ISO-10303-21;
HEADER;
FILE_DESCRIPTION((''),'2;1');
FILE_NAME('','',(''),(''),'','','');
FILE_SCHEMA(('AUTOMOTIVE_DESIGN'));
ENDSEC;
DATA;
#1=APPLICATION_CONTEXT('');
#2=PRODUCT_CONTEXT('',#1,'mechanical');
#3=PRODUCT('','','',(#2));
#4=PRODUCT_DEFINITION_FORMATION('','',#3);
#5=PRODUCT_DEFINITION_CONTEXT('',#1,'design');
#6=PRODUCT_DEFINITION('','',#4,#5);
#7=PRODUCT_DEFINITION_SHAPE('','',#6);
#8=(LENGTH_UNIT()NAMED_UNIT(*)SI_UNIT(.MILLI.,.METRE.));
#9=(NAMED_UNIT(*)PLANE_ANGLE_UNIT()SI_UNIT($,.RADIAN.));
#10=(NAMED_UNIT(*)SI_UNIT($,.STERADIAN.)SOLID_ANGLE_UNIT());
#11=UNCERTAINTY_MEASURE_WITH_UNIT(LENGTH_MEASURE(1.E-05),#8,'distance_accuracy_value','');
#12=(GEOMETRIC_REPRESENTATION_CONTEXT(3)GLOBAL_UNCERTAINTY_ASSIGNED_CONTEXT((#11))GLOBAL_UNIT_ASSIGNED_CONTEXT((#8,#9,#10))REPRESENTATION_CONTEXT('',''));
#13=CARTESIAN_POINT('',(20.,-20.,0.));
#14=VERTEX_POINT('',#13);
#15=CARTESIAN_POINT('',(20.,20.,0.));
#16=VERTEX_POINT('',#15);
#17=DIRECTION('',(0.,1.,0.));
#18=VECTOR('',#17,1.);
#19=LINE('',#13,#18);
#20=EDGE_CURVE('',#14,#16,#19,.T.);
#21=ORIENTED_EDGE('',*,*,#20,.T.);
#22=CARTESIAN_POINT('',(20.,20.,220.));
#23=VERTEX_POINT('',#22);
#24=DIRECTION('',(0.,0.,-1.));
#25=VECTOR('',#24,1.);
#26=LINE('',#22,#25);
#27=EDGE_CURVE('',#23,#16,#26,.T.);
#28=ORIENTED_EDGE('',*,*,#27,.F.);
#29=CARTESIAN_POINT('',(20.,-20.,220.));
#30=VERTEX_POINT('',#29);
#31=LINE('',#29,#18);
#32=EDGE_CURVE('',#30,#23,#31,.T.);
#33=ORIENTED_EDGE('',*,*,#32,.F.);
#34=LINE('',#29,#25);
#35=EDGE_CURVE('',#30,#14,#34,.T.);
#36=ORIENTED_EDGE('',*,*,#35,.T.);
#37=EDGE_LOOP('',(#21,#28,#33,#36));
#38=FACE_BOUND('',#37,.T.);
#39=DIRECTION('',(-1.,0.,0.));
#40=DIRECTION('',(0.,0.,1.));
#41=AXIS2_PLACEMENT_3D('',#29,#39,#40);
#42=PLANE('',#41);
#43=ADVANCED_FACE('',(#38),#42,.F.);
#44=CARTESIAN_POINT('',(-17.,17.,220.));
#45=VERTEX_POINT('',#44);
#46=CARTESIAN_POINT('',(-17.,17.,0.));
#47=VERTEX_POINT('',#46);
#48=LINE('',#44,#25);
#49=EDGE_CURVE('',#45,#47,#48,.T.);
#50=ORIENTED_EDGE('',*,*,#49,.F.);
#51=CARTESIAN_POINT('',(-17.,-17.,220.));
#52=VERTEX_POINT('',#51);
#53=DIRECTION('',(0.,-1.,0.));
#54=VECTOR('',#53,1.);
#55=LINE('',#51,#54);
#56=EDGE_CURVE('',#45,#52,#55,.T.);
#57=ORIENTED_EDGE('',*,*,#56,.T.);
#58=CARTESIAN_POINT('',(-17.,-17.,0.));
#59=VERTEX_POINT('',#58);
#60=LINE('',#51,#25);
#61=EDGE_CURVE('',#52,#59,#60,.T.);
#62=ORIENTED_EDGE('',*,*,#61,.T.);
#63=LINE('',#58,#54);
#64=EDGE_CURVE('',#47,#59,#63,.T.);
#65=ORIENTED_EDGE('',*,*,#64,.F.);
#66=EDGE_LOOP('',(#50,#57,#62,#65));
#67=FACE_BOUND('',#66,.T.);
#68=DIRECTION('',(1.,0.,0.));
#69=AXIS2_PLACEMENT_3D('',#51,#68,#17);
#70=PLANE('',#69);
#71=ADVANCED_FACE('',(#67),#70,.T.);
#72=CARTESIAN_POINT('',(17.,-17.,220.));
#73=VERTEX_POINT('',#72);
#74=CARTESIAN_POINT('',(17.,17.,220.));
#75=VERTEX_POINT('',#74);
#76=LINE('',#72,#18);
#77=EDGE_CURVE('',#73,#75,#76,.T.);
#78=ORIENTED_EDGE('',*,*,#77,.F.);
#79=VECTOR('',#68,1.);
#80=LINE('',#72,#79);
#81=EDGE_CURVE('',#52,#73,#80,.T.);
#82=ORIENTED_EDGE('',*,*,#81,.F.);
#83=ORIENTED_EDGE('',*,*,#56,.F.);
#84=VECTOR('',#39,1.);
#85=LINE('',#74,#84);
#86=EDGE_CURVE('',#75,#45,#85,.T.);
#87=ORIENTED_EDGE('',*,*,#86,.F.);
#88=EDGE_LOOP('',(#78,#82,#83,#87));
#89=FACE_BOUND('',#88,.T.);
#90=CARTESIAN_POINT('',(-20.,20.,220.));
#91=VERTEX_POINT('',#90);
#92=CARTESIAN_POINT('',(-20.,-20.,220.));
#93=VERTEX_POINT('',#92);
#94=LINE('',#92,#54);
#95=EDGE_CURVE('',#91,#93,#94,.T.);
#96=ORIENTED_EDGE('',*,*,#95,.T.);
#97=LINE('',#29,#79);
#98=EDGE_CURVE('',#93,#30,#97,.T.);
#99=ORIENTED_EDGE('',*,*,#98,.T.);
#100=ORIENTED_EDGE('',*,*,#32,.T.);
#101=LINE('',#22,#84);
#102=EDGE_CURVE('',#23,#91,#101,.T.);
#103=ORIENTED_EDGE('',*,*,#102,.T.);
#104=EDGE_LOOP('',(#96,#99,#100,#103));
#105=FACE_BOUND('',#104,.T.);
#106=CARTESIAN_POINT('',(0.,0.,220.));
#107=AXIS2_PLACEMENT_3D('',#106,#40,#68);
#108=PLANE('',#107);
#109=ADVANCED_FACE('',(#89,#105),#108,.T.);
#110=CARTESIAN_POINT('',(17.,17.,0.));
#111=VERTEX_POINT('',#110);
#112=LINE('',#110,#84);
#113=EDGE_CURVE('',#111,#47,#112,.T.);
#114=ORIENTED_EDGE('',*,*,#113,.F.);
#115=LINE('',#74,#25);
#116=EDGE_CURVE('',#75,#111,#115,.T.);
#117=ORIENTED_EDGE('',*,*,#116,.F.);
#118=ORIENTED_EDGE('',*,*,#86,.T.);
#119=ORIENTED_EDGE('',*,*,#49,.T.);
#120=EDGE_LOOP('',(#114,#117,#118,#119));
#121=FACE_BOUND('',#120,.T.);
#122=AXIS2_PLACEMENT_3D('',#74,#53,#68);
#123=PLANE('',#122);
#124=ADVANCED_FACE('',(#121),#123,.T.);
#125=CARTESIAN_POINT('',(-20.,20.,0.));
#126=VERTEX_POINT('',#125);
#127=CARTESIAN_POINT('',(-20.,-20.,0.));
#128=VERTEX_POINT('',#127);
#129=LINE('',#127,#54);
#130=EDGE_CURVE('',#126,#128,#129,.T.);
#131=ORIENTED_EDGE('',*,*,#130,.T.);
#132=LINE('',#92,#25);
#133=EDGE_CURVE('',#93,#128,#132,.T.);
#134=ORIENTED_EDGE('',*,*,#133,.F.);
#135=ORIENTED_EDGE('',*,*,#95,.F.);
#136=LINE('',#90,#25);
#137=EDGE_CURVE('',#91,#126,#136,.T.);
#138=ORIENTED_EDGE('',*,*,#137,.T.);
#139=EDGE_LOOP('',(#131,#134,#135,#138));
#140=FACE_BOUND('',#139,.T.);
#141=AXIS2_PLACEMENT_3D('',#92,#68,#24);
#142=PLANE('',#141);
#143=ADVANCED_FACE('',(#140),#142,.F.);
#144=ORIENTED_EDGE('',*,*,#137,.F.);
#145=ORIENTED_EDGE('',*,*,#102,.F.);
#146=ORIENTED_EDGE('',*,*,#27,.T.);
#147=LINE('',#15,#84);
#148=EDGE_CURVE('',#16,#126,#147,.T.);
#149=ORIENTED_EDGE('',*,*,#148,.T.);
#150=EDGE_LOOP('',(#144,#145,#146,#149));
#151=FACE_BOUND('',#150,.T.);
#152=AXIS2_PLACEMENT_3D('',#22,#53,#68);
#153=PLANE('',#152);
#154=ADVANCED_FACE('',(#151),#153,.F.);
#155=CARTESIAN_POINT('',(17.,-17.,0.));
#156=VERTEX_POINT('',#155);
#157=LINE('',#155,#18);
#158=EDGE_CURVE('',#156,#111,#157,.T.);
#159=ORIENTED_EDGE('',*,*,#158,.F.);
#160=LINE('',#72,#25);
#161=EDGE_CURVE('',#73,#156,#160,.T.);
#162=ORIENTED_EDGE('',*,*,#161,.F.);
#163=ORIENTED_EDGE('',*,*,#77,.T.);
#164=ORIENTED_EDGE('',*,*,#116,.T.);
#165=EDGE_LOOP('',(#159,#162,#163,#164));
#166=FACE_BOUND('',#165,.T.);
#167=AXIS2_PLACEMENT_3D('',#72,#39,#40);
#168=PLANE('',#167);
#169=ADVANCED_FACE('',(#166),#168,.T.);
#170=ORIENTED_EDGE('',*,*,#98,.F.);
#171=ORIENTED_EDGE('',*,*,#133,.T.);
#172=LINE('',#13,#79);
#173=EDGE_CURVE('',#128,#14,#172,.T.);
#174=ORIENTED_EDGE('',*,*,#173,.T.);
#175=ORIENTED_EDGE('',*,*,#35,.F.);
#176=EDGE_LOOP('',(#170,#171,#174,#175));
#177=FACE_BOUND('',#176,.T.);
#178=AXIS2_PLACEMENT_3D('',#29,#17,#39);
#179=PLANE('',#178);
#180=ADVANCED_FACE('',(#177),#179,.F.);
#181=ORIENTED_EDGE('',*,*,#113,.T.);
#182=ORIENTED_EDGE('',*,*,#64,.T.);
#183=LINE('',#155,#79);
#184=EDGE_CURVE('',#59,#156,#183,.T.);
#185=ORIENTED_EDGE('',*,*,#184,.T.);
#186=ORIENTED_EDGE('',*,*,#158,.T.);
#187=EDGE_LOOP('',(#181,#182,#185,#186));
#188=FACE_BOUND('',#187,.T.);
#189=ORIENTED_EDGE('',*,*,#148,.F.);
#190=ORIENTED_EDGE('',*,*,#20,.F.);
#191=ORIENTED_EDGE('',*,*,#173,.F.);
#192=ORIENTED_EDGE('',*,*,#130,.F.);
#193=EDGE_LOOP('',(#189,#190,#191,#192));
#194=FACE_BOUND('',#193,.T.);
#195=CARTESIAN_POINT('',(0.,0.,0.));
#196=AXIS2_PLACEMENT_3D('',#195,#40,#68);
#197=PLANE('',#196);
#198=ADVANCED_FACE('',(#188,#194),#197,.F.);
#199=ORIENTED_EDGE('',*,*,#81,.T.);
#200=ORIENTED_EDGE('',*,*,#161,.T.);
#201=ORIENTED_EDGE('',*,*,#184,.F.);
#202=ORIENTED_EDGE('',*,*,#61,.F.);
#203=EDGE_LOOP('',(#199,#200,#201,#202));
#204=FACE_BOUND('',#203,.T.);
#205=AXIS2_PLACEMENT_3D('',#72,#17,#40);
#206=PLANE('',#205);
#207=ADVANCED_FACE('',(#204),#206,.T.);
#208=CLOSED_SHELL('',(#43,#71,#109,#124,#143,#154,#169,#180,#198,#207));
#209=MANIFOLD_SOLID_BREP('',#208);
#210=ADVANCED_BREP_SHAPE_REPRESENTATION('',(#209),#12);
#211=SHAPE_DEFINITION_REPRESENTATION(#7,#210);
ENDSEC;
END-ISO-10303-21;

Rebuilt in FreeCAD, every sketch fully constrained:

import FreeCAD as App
import Part
import Sketcher
Q = App.Units.Quantity


def add_polygon(sketch, points):
    """Adds a closed chain of lines whose ends are joined by coincident constraints."""
    first, n = sketch.GeometryCount, len(points)
    for a, b in zip(points, points[1:] + points[:1]):
        sketch.addGeometry(Part.LineSegment(App.Vector(*a, 0), App.Vector(*b, 0)), False)
    for i in range(n):
        sketch.addConstraint(Sketcher.Constraint("Coincident", first + i, 2, first + (i + 1) % n, 1))

doc = App.newDocument("Part")
body = doc.addObject("PartDesign::Body", "Body")

sketch1 = doc.addObject("Sketcher::SketchObject", "Sketch")
body.addObject(sketch1)
sketch1.AttachmentSupport = (doc.XY_Plane, [""])
sketch1.MapMode = "FlatFace"
add_polygon(sketch1, [(-20, 20), (-20, -20), (20, -20), (20, 20)])
add_polygon(sketch1, [(17, -17), (-17, -17), (-17, 17), (17, 17)])
sketch1.addConstraint([
    Sketcher.Constraint("Vertical", 0),
    Sketcher.Constraint("Horizontal", 1),
    Sketcher.Constraint("Vertical", 2),
    Sketcher.Constraint("Horizontal", 3),
    Sketcher.Constraint("Horizontal", 4),
    Sketcher.Constraint("Vertical", 5),
    Sketcher.Constraint("Horizontal", 6),
    Sketcher.Constraint("Vertical", 7),
    Sketcher.Constraint("Symmetric", 0, 2, 2, 2, -1, 1),
    Sketcher.Constraint("Symmetric", 4, 2, 6, 2, -1, 1),
    Sketcher.Constraint("Equal", 3, 0),
    Sketcher.Constraint("Equal", 6, 5),
    Sketcher.Constraint("DistanceX", 1, 1, 1, 2, Q("40 mm")),
    Sketcher.Constraint("DistanceX", 4, 2, 4, 1, Q("34 mm")),
])
pad1 = doc.addObject("PartDesign::Pad", "Pad")
body.addObject(pad1)
pad1.Profile = sketch1
pad1.Length = 220

doc.recompute()
